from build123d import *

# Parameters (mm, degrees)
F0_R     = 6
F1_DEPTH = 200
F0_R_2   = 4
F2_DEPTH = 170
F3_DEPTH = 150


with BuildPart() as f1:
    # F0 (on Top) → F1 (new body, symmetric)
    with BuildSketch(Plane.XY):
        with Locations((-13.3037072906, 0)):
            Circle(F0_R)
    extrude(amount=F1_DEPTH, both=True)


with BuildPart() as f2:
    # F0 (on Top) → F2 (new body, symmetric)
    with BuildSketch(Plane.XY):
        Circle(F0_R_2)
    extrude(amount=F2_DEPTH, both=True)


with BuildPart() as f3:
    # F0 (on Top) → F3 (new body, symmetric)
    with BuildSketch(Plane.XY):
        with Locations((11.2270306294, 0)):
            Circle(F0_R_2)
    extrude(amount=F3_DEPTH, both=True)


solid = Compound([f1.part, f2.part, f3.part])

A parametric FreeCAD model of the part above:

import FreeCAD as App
import Part
import Sketcher
from FreeCAD import Vector

doc = App.newDocument("Part")
params = doc.addObject("Spreadsheet::Sheet", "Params")
for row, (alias, value) in enumerate([
    ("sketch1_diameter", "12 mm"),
    ("pad1_length", "400 mm"),
    ("sketch2_diameter", "8 mm"),
    ("pad2_length", "340 mm"),
    ("sketch3_diameter", "8 mm"),
    ("pad3_length", "300 mm"),
], start=1):
    params.set(f"A{row}", alias)
    params.set(f"B{row}", "=" + value)
    params.setAlias(f"B{row}", alias)

body = doc.addObject("PartDesign::Body", "Body")

# Sketch on XY plane
sketch1 = body.newObject("Sketcher::SketchObject", "Sketch")
sketch1.AttachmentSupport = (doc.getObject("XY_Plane"), [""])
sketch1.MapMode = "FlatFace"
sketch1.addGeometry(Part.Circle(Vector(-13, 0, 0), Vector(0, 0, 1), 6), False)
sketch1.addConstraint([
    Sketcher.Constraint("PointOnObject", 0, 3, -1),
    Sketcher.Constraint("Diameter", 0, 12.0),
    Sketcher.Constraint("DistanceX", 0, 3, -1, 1, 13.303707),
])
sketch1.setExpression("Constraints[1]", "Params.sketch1_diameter")
pad1 = body.newObject("PartDesign::Pad", "Pad")
pad1.Profile = sketch1
pad1.setExpression("Length", "Params.pad1_length")
pad1.Midplane = True
body2 = doc.addObject("PartDesign::Body", "Body001")

# Sketch on XY plane
sketch2 = body2.newObject("Sketcher::SketchObject", "Sketch001")
sketch2.AttachmentSupport = (doc.getObject("XY_Plane001"), [""])
sketch2.MapMode = "FlatFace"
sketch2.addGeometry(Part.Circle(Vector(0, 0, 0), Vector(0, 0, 1), 4), False)
sketch2.addConstraint([
    Sketcher.Constraint("Coincident", 0, 3, -1, 1),
    Sketcher.Constraint("Diameter", 0, 8.0),
])
sketch2.setExpression("Constraints[1]", "Params.sketch2_diameter")
pad2 = body2.newObject("PartDesign::Pad", "Pad001")
pad2.Profile = sketch2
pad2.setExpression("Length", "Params.pad2_length")
pad2.Midplane = True
body3 = doc.addObject("PartDesign::Body", "Body002")

# Sketch on XY plane
sketch3 = body3.newObject("Sketcher::SketchObject", "Sketch002")
sketch3.AttachmentSupport = (doc.getObject("XY_Plane002"), [""])
sketch3.MapMode = "FlatFace"
sketch3.addGeometry(Part.Circle(Vector(11.2, 0, 0), Vector(0, 0, 1), 4), False)
sketch3.addConstraint([
    Sketcher.Constraint("PointOnObject", 0, 3, -1),
    Sketcher.Constraint("Diameter", 0, 8.0),
    Sketcher.Constraint("DistanceX", -1, 1, 0, 3, 11.227031),
])
sketch3.setExpression("Constraints[1]", "Params.sketch3_diameter")
pad3 = body3.newObject("PartDesign::Pad", "Pad002")
pad3.Profile = sketch3
pad3.setExpression("Length", "Params.pad3_length")
pad3.Midplane = True

doc.recompute()
